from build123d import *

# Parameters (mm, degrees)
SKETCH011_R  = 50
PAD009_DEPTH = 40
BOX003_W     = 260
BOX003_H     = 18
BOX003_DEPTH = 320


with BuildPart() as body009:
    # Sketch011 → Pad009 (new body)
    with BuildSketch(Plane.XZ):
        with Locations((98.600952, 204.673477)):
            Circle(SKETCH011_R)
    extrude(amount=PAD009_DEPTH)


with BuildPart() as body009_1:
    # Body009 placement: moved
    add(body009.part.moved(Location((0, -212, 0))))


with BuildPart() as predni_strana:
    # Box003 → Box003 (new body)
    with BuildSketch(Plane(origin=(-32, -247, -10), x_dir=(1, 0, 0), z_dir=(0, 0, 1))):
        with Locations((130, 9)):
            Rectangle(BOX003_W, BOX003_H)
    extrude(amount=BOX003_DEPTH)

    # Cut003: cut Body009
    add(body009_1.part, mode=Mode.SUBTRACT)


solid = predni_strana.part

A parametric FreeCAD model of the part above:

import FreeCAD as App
import Part
import Sketcher
from FreeCAD import Vector


def add_polygon(sketch, points):
    """Adds a closed chain of lines whose ends are joined by coincident constraints."""
    first, n = sketch.GeometryCount, len(points)
    for a, b in zip(points, points[1:] + points[:1]):
        sketch.addGeometry(Part.LineSegment(App.Vector(*a, 0), App.Vector(*b, 0)), False)
    for i in range(n):
        sketch.addConstraint(Sketcher.Constraint("Coincident", first + i, 2, first + (i + 1) % n, 1))

doc = App.newDocument("Part")
body = doc.addObject("PartDesign::Body", "Body")

sketch1 = body.newObject("Sketcher::SketchObject", "Sketch")
sketch1.AttachmentSupport = (doc.getObject("XZ_Plane"), [""])
sketch1.MapMode = "FlatFace"
sketch1.addGeometry(Part.Circle(Vector(98.600952, 204.673477, 0), Vector(0, 0, 1), 50), False)
sketch1.addConstraint(Sketcher.Constraint("Diameter", 0, 100.0))
sketch1.addConstraint(Sketcher.Constraint("DistanceX", -1, 1, 0, 3, 98.600952))
sketch1.addConstraint(Sketcher.Constraint("DistanceY", -1, 1, 0, 3, 204.673477))
pad1 = body.newObject("PartDesign::Pad", "Pad")
pad1.Profile = sketch1
pad1.Length = 40
body2 = doc.addObject("PartDesign::Body", "Body001")
doc.recompute()

body.Placement = App.Placement(Vector(0, -212, 0), App.Rotation(Vector(0, 0, 1), 0))
boolean = body2.newObject("PartDesign::Boolean", "Boolean")
boolean.Type = "Fuse"
boolean.addObjects([body])
body3 = doc.addObject("PartDesign::Body", "Body002")

sketch2 = body3.newObject("Sketcher::SketchObject", "Sketch001")
sketch2.AttachmentSupport = (doc.getObject("XY_Plane002"), [""])
sketch2.MapMode = "FlatFace"
sketch2.AttachmentOffset = App.Placement(Vector(0, 0, -10), App.Rotation())
add_polygon(sketch2, [(-32, -229), (-32, -247), (228, -247), (228, -229)])
sketch2.addConstraint(Sketcher.Constraint("Vertical", 0))
sketch2.addConstraint(Sketcher.Constraint("Horizontal", 1))
sketch2.addConstraint(Sketcher.Constraint("Vertical", 2))
sketch2.addConstraint(Sketcher.Constraint("Horizontal", 3))
sketch2.addConstraint(Sketcher.Constraint("DistanceX", 1, 1, 1, 2, 260.0))
sketch2.addConstraint(Sketcher.Constraint("DistanceY", 0, 2, 0, 1, 18.0))
sketch2.addConstraint(Sketcher.Constraint("DistanceX", 0, 2, -1, 1, 32.0))
sketch2.addConstraint(Sketcher.Constraint("DistanceY", 0, 2, -1, 1, 247.0))
pad2 = body3.newObject("PartDesign::Pad", "Pad001")
pad2.Profile = sketch2
pad2.Length = 320
doc.recompute()

boolean2 = body3.newObject("PartDesign::Boolean", "Boolean001")
boolean2.Type = "Cut"
boolean2.addObjects([body2])

doc.recompute()
